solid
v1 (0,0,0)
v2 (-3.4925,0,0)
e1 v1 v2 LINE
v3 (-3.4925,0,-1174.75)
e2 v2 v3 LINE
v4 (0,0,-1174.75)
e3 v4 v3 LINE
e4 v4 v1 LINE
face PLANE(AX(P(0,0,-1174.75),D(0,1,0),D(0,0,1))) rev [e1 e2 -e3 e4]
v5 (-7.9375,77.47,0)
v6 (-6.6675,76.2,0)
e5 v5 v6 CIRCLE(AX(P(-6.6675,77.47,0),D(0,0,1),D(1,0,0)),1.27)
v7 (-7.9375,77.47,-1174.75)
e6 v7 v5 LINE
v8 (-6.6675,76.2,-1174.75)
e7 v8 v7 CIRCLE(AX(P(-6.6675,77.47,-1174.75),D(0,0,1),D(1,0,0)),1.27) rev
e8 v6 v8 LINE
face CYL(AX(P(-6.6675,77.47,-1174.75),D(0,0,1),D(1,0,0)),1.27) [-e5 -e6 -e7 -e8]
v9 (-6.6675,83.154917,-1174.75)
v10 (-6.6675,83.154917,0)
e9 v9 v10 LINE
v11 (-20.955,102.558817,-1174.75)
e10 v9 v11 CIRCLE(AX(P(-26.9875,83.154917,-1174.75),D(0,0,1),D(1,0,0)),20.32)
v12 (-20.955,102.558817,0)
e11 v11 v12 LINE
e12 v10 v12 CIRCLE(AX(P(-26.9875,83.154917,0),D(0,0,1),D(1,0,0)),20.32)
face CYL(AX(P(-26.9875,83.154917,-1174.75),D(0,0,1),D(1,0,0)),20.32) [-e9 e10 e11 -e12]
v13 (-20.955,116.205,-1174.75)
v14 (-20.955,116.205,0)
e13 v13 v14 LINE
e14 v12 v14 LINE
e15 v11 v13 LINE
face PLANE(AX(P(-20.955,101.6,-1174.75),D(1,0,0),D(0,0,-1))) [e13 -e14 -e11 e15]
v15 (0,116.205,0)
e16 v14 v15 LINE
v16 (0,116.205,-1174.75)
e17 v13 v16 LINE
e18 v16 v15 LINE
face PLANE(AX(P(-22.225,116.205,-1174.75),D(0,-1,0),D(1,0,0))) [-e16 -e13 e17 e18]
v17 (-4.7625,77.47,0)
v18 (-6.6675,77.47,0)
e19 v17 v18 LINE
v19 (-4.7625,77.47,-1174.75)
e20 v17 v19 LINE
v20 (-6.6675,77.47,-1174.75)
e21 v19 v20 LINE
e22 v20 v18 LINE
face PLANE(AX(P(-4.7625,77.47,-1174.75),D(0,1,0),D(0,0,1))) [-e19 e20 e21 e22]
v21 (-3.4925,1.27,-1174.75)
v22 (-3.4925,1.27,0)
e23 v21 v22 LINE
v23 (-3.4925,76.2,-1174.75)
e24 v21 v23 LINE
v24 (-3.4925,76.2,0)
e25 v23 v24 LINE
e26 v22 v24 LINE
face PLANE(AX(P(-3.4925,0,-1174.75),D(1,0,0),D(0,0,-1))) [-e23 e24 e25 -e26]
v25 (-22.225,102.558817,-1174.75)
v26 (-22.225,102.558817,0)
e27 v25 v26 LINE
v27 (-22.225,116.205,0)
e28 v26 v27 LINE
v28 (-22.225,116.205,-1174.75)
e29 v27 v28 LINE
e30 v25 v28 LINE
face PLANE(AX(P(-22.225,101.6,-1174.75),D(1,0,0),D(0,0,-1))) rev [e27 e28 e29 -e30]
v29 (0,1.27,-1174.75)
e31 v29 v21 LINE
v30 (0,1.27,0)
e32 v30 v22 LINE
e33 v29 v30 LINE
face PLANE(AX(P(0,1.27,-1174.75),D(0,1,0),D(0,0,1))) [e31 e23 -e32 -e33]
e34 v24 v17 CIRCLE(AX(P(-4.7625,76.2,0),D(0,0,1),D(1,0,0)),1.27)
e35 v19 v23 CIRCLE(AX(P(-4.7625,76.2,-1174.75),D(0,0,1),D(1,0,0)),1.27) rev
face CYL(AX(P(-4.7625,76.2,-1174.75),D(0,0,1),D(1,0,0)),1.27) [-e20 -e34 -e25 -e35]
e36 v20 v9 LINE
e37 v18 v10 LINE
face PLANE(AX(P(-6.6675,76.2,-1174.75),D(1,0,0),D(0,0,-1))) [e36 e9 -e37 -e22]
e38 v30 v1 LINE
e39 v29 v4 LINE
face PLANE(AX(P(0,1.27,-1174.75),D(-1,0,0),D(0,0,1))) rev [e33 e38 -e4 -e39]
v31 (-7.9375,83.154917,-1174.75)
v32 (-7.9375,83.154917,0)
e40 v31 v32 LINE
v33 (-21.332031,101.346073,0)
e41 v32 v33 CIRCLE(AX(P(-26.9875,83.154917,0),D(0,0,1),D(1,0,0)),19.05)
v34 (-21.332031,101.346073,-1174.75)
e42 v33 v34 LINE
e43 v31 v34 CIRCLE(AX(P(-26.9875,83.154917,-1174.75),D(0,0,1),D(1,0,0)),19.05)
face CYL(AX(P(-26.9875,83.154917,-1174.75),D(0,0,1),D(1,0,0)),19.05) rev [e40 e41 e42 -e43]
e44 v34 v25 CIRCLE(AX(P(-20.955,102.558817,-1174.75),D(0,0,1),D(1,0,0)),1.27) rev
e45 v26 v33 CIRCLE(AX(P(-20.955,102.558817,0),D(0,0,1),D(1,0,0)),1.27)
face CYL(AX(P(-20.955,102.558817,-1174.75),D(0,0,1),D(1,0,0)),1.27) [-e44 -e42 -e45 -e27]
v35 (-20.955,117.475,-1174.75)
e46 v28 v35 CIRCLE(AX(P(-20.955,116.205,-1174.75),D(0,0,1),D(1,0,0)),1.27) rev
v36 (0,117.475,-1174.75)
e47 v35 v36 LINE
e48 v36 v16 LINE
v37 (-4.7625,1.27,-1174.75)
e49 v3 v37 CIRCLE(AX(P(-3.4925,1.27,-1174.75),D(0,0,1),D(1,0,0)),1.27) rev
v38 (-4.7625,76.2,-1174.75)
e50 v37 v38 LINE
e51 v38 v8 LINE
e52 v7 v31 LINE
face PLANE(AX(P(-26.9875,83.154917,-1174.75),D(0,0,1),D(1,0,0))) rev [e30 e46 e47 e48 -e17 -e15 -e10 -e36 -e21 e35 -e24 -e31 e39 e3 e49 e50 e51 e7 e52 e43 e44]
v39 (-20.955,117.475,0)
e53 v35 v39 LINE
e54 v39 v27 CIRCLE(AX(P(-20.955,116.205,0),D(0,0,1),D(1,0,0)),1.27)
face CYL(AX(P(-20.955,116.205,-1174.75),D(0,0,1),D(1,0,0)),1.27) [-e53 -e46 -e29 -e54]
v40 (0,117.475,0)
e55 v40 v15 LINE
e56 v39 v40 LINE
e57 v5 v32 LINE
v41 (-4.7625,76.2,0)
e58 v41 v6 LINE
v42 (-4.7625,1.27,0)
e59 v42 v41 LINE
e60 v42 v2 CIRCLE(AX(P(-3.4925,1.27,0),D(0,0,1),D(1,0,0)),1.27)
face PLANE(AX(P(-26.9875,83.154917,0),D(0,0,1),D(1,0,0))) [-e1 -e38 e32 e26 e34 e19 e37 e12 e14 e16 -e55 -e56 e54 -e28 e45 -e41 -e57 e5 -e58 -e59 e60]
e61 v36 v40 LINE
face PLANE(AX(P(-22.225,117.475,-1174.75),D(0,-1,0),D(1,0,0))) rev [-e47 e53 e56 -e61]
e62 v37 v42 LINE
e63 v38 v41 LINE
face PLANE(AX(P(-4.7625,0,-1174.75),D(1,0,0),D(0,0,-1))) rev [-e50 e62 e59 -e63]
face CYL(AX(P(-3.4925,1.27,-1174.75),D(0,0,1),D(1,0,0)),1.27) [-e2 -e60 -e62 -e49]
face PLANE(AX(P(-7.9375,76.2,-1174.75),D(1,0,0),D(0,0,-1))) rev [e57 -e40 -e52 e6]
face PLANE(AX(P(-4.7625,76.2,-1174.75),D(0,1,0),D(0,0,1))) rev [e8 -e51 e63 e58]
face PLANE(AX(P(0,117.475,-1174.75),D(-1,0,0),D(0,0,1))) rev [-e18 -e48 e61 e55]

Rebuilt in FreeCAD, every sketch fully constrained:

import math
import FreeCAD as App
import Part
import Sketcher
Q = App.Units.Quantity


def edges_at(feature, points):
    """Names of the edges that pass closest to the given points."""
    edges = feature.Shape.Edges
    near = lambda p: min(range(len(edges)), key=lambda i: edges[i].distToShape(Part.Vertex(*p))[0])
    return sorted({f"Edge{near(p) + 1}" for p in points})

doc = App.newDocument("Part")
body = doc.addObject("PartDesign::Body", "Body")

# Sketch on XY plane
sketch1 = body.newObject("Sketcher::SketchObject", "Sketch")
sketch1.AttachmentSupport = (doc.getObject("XY_Plane"), [""])
sketch1.MapMode = "FlatFace"
sketch1.addGeometry(Part.LineSegment(App.Vector(-4.8, 0, 0), App.Vector(0, 0, 0)), False)
sketch1.addGeometry(Part.LineSegment(App.Vector(0, 0, 0), App.Vector(0, 1.3, 0)), False)
sketch1.addGeometry(Part.LineSegment(App.Vector(0, 1.3, 0), App.Vector(-3.5, 1.3, 0)), False)
sketch1.addGeometry(Part.LineSegment(App.Vector(-3.5, 1.3, 0), App.Vector(-3.5, 77.5, 0)), False)
sketch1.addGeometry(Part.LineSegment(App.Vector(-3.5, 77.5, 0), App.Vector(-6.7, 77.5, 0)), False)
sketch1.addGeometry(Part.LineSegment(App.Vector(-6.7, 77.5, 0), App.Vector(-6.7, 83.2, 0)), False)
sketch1.addGeometry(Part.ArcOfCircle(Part.Circle(App.Vector(-27, 83.2, 0), App.Vector(0, 0, 1), 20.3), math.radians(0), math.radians(73)), False)
sketch1.addGeometry(Part.LineSegment(App.Vector(-21, 102.6, 0), App.Vector(-21, 116.2, 0)), False)
sketch1.addGeometry(Part.LineSegment(App.Vector(-21, 116.2, 0), App.Vector(0, 116.2, 0)), False)
sketch1.addGeometry(Part.LineSegment(App.Vector(0, 116.2, 0), App.Vector(0, 117.5, 0)), False)
sketch1.addGeometry(Part.LineSegment(App.Vector(0, 117.5, 0), App.Vector(-22.2, 117.5, 0)), False)
sketch1.addGeometry(Part.LineSegment(App.Vector(-22.2, 117.5, 0), App.Vector(-22.2, 101.6, 0)), False)
sketch1.addGeometry(Part.ArcOfCircle(Part.Circle(App.Vector(-27, 83.2, 0), App.Vector(0, 0, 1), 19), math.radians(0), math.radians(76)), False)
sketch1.addGeometry(Part.LineSegment(App.Vector(-7.9, 83.2, 0), App.Vector(-7.9, 76.2, 0)), False)
sketch1.addGeometry(Part.LineSegment(App.Vector(-7.9, 76.2, 0), App.Vector(-4.8, 76.2, 0)), False)
sketch1.addGeometry(Part.LineSegment(App.Vector(-4.8, 76.2, 0), App.Vector(-4.8, 0, 0)), False)
sketch1.addConstraint(Sketcher.Constraint("Coincident", 0, 2, 1, 1))
sketch1.addConstraint(Sketcher.Constraint("Coincident", 1, 2, 2, 1))
sketch1.addConstraint(Sketcher.Constraint("Coincident", 2, 2, 3, 1))
sketch1.addConstraint(Sketcher.Constraint("Coincident", 3, 2, 4, 1))
sketch1.addConstraint(Sketcher.Constraint("Coincident", 4, 2, 5, 1))
sketch1.addConstraint(Sketcher.Constraint("Tangent", 5, 2, 6, 1))
sketch1.addConstraint(Sketcher.Constraint("Coincident", 6, 2, 7, 1))
sketch1.addConstraint(Sketcher.Constraint("Coincident", 7, 2, 8, 1))
sketch1.addConstraint(Sketcher.Constraint("Coincident", 8, 2, 9, 1))
sketch1.addConstraint(Sketcher.Constraint("Coincident", 9, 2, 10, 1))
sketch1.addConstraint(Sketcher.Constraint("Coincident", 10, 2, 11, 1))
sketch1.addConstraint(Sketcher.Constraint("Coincident", 11, 2, 12, 2))
sketch1.addConstraint(Sketcher.Constraint("Tangent", 12, 1, 13, 1))
sketch1.addConstraint(Sketcher.Constraint("Coincident", 13, 2, 14, 1))
sketch1.addConstraint(Sketcher.Constraint("Coincident", 14, 2, 15, 1))
sketch1.addConstraint(Sketcher.Constraint("Coincident", 15, 2, 0, 1))
sketch1.addConstraint(Sketcher.Constraint("Horizontal", 0))
sketch1.addConstraint(Sketcher.Constraint("Vertical", 1))
sketch1.addConstraint(Sketcher.Constraint("Horizontal", 2))
sketch1.addConstraint(Sketcher.Constraint("Vertical", 3))
sketch1.addConstraint(Sketcher.Constraint("Horizontal", 4))
sketch1.addConstraint(Sketcher.Constraint("Vertical", 5))
sketch1.addConstraint(Sketcher.Constraint("Vertical", 7))
sketch1.addConstraint(Sketcher.Constraint("Horizontal", 8))
sketch1.addConstraint(Sketcher.Constraint("Vertical", 9))
sketch1.addConstraint(Sketcher.Constraint("Horizontal", 10))
sketch1.addConstraint(Sketcher.Constraint("Vertical", 11))
sketch1.addConstraint(Sketcher.Constraint("Vertical", 13))
sketch1.addConstraint(Sketcher.Constraint("Horizontal", 14))
sketch1.addConstraint(Sketcher.Constraint("Vertical", 15))
sketch1.addConstraint(Sketcher.Constraint("Coincident", 0, 2, -1, 1))
sketch1.addConstraint(Sketcher.Constraint("Coincident", 12, 3, 6, 3))
sketch1.addConstraint(Sketcher.Constraint("PointOnObject", 8, 2, -2))
sketch1.addConstraint(Sketcher.Constraint("Equal", 4, 14))
sketch1.addConstraint(Sketcher.Constraint("Equal", 1, 9))
sketch1.addConstraint(Sketcher.Constraint("Equal", 3, 15))
sketch1.addConstraint(Sketcher.Constraint("Radius", 6, Q("0.8 in")))
sketch1.addConstraint(Sketcher.Constraint("DistanceY", 3, 1, 3, 2, Q("3 in")))
sketch1.addConstraint(Sketcher.Constraint("Radius", 12, Q("0.75 in")))
sketch1.addConstraint(Sketcher.Constraint("DistanceY", -1, 1, 11, 2, Q("4 in")))
sketch1.addConstraint(Sketcher.Constraint("DistanceY", 1, 1, 1, 2, Q("0.05 in")))
sketch1.addConstraint(Sketcher.Constraint("DistanceX", 0, 1, 0, 2, Q("0.1875 in")))
sketch1.addConstraint(Sketcher.Constraint("DistanceX", 4, 2, 4, 1, Q("0.125 in")))
sketch1.addConstraint(Sketcher.Constraint("DistanceX", 8, 1, 8, 2, Q("0.825 in")))
sketch1.addConstraint(Sketcher.Constraint("DistanceX", 10, 2, 10, 1, Q("0.875 in")))
sketch1.addConstraint(Sketcher.Constraint("DistanceY", 11, 2, 11, 1, Q("0.625 in")))
pad1 = body.newObject("PartDesign::Pad", "Pad")
pad1.Profile = sketch1
pad1.Length = Q("46.25 in")
pad1.Reversed = True
doc.recompute()

fillet = body.newObject("PartDesign::Fillet", "Fillet")
fillet.Base = (pad1, edges_at(pad1, [
    (-3.493, 77.47, -587.375),
    (-4.763, 0, -587.375),
    (-7.938, 76.2, -587.375),
    (-22.225, 101.6, -587.375),
    (-22.225, 117.475, -587.375),
]))
fillet.Radius = Q("0.05 in")

doc.recompute()
